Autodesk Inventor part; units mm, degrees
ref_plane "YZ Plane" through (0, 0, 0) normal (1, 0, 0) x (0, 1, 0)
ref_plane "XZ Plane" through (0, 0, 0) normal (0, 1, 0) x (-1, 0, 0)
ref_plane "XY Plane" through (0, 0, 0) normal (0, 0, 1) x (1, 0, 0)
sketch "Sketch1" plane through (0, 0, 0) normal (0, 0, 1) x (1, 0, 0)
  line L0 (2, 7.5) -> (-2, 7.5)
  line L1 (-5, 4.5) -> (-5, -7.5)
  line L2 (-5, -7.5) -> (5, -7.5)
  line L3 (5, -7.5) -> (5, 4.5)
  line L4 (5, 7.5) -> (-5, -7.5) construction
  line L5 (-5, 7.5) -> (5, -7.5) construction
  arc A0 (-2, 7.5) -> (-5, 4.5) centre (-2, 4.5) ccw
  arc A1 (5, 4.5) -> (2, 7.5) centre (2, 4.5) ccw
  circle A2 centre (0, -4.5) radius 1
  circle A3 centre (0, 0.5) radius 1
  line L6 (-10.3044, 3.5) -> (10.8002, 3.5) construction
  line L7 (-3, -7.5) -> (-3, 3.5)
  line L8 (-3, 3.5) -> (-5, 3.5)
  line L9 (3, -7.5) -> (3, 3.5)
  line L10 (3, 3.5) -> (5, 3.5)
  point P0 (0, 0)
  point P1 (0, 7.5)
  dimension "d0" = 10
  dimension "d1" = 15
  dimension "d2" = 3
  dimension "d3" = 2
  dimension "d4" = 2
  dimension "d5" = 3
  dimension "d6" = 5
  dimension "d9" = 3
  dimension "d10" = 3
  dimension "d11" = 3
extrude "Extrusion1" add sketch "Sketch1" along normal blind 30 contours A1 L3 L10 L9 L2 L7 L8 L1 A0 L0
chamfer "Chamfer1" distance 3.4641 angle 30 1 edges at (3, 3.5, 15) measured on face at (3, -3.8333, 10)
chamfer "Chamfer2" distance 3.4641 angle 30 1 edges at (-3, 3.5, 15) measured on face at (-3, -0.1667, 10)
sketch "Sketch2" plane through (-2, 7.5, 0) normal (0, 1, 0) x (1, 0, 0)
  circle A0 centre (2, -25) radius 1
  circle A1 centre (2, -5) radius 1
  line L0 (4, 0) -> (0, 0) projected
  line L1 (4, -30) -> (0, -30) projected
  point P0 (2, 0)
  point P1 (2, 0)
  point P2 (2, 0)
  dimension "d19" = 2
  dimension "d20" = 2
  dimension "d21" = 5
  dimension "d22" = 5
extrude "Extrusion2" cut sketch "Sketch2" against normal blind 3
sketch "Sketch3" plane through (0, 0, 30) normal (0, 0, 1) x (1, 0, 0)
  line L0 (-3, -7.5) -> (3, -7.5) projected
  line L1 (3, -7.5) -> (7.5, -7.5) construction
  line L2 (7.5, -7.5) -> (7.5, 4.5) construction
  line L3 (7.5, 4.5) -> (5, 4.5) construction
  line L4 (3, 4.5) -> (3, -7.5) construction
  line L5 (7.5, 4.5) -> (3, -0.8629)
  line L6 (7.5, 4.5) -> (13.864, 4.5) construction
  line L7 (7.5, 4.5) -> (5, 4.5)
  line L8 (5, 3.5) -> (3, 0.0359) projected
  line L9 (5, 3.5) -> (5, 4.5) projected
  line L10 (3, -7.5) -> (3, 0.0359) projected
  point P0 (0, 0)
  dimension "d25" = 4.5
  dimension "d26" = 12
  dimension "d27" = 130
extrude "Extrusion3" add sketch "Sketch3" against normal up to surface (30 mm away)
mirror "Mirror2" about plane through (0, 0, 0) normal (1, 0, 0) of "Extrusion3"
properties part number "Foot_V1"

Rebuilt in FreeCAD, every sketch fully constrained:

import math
import FreeCAD as App
import Part
import Sketcher
from FreeCAD import Vector
Q = App.Units.Quantity


def edges_at(feature, points):
    """Names of the edges that pass closest to the given points."""
    edges = feature.Shape.Edges
    near = lambda p: min(range(len(edges)), key=lambda i: edges[i].distToShape(Part.Vertex(*p))[0])
    return sorted({f"Edge{near(p) + 1}" for p in points})


def add_polygon(sketch, points):
    """Adds a closed chain of lines whose ends are joined by coincident constraints."""
    first, n = sketch.GeometryCount, len(points)
    for a, b in zip(points, points[1:] + points[:1]):
        sketch.addGeometry(Part.LineSegment(App.Vector(*a, 0), App.Vector(*b, 0)), False)
    for i in range(n):
        sketch.addConstraint(Sketcher.Constraint("Coincident", first + i, 2, first + (i + 1) % n, 1))

doc = App.newDocument("Part")
body = doc.addObject("PartDesign::Body", "Body")

# Sketch on XY plane
sketch1 = doc.addObject("Sketcher::SketchObject", "Sketch")
body.addObject(sketch1)
sketch1.AttachmentSupport = (doc.XY_Plane, [""])
sketch1.MapMode = "FlatFace"
sketch1.addGeometry([
    Part.ArcOfCircle(Part.Circle(Vector(2, 4.5, 0), Vector(0, 0, 1), 3), math.radians(0), math.radians(90)),  # 0
    Part.LineSegment(Vector(2, 7.5, 0), Vector(-2, 7.5, 0)),  # 1
    Part.ArcOfCircle(Part.Circle(Vector(-2, 4.5, 0), Vector(0, 0, 1), 3), math.radians(90), math.radians(180)),  # 2
    Part.LineSegment(Vector(-5, 4.5, 0), Vector(-5, 3.5, 0)),  # 3
    Part.LineSegment(Vector(-5, 3.5, 0), Vector(-3, 3.5, 0)),  # 4
    Part.LineSegment(Vector(-3, 3.5, 0), Vector(-3, -7.5, 0)),  # 5
    Part.LineSegment(Vector(-3, -7.5, 0), Vector(3, -7.5, 0)),  # 6
    Part.LineSegment(Vector(3, -7.5, 0), Vector(3, 3.5, 0)),  # 7
    Part.LineSegment(Vector(3, 3.5, 0), Vector(5, 3.5, 0)),  # 8
    Part.LineSegment(Vector(5, 3.5, 0), Vector(5, 4.5, 0)),  # 9
    Part.Circle(Vector(0, -4.5, 0), Vector(0, 0, 1), 1),  # 10
    Part.Circle(Vector(0, 0.5, 0), Vector(0, 0, 1), 1),  # 11
], False)
sketch1.addConstraint([
    Sketcher.Constraint("Tangent", 0, 2, 1, 1),
    Sketcher.Constraint("Tangent", 1, 2, 2, 1),
    Sketcher.Constraint("Tangent", 2, 2, 3, 1),
    Sketcher.Constraint("Coincident", 3, 2, 4, 1),
    Sketcher.Constraint("Coincident", 4, 2, 5, 1),
    Sketcher.Constraint("Coincident", 5, 2, 6, 1),
    Sketcher.Constraint("Coincident", 6, 2, 7, 1),
    Sketcher.Constraint("Coincident", 7, 2, 8, 1),
    Sketcher.Constraint("Coincident", 8, 2, 9, 1),
    Sketcher.Constraint("Tangent", 9, 2, 0, 1),
    Sketcher.Constraint("Horizontal", 1),
    Sketcher.Constraint("Vertical", 3),
    Sketcher.Constraint("Horizontal", 4),
    Sketcher.Constraint("Vertical", 5),
    Sketcher.Constraint("Horizontal", 6),
    Sketcher.Constraint("Vertical", 7),
    Sketcher.Constraint("Horizontal", 8),
    Sketcher.Constraint("Vertical", 9),
    Sketcher.Constraint("Equal", 0, 2),
    Sketcher.Constraint("Equal", 10, 11),
    Sketcher.Constraint("Symmetric", 4, 2, 7, 2, -2),
    Sketcher.Constraint("PointOnObject", 10, 3, -2),
    Sketcher.Constraint("PointOnObject", 11, 3, -2),
    Sketcher.Constraint("Equal", 4, 8),
    Sketcher.Constraint("Diameter", 10, Q("2 mm")),
    Sketcher.Constraint("Radius", 0, Q("3 mm")),
    Sketcher.Constraint("DistanceX", 4, 1, 4, 2, Q("2 mm")),
    Sketcher.Constraint("DistanceX", -1, 1, 0, 3, Q("2 mm")),
    Sketcher.Constraint("DistanceY", 10, 3, 11, 3, Q("5 mm")),
    Sketcher.Constraint("DistanceY", 11, 3, 3, 2, Q("3 mm")),
    Sketcher.Constraint("DistanceY", 5, 2, 10, 3, Q("3 mm")),
    Sketcher.Constraint("DistanceY", 3, 2, 3, 1, Q("1 mm")),
    Sketcher.Constraint("DistanceY", -1, 1, 0, 3, Q("4.5 mm")),
])
pad1 = doc.addObject("PartDesign::Pad", "Pad")
body.addObject(pad1)
pad1.Profile = sketch1
pad1.Length = 30
doc.recompute()

chamfer = doc.addObject("PartDesign::Chamfer", "Chamfer")
body.addObject(chamfer)
chamfer.Base = (pad1, edges_at(pad1, [(3, 3.5, 15)]))
chamfer.ChamferType = "Distance and Angle"
chamfer.Size = 3.4641
chamfer.Angle = 30
doc.recompute()

chamfer2 = doc.addObject("PartDesign::Chamfer", "Chamfer001")
body.addObject(chamfer2)
chamfer2.Base = (chamfer, edges_at(chamfer, [(-3, 3.5, 15)]))
chamfer2.ChamferType = "Distance and Angle"
chamfer2.Size = 3.4641
chamfer2.Angle = 30

# Sketch on XZ plane
sketch2 = doc.addObject("Sketcher::SketchObject", "Sketch001")
body.addObject(sketch2)
sketch2.AttachmentSupport = (doc.XZ_Plane, [""])
sketch2.MapMode = "FlatFace"
sketch2.AttachmentOffset = App.Placement(Vector(0, 0, -7.5), App.Rotation())
sketch2.addGeometry([
    Part.Circle(Vector(0, 25, 0), Vector(0, 0, 1), 1),
    Part.Circle(Vector(0, 5, 0), Vector(0, 0, 1), 1),
], False)
sketch2.addConstraint([
    Sketcher.Constraint("Equal", 0, 1),
    Sketcher.Constraint("PointOnObject", 0, 3, -2),
    Sketcher.Constraint("PointOnObject", 1, 3, -2),
    Sketcher.Constraint("Diameter", 0, Q("2 mm")),
    Sketcher.Constraint("DistanceY", -1, 1, 1, 3, Q("5 mm")),
    Sketcher.Constraint("DistanceY", -1, 1, 0, 3, Q("25 mm")),
])
pocket1 = doc.addObject("PartDesign::Pocket", "Pocket")
body.addObject(pocket1)
pocket1.Profile = sketch2
pocket1.Length = 3
pocket1.Reversed = True

# Sketch on XY plane
sketch3 = doc.addObject("Sketcher::SketchObject", "Sketch002")
body.addObject(sketch3)
sketch3.AttachmentSupport = (doc.XY_Plane, [""])
sketch3.MapMode = "FlatFace"
sketch3.AttachmentOffset = App.Placement(Vector(0, 0, 30), App.Rotation())
add_polygon(sketch3, [(3, -0.8629), (7.5, 4.5), (5, 4.5), (5, 3.5), (3, 0.0359)])  # lines 0-4
sketch3.addConstraint([
    Sketcher.Constraint("Horizontal", 1),
    Sketcher.Constraint("Vertical", 2),
    Sketcher.Constraint("Vertical", 4),
    Sketcher.Constraint("DistanceY", -1, 1, 0, 2, Q("4.5 mm")),
    Sketcher.Constraint("DistanceX", 3, 2, 0, 2, Q("4.5 mm")),
    Sketcher.Constraint("DistanceY", 2, 2, 2, 1, Q("1 mm")),
    Sketcher.Constraint("Angle", 0, Q("50 deg")),
    Sketcher.Constraint("Angle", 3, Q("-120 deg")),
    Sketcher.Constraint("Distance", 3, Q("4 mm")),
    Sketcher.Constraint("DistanceX", -1, 1, 1, 2, Q("5 mm")),
])
pad2 = doc.addObject("PartDesign::Pad", "Pad001")
body.addObject(pad2)
pad2.Profile = sketch3
pad2.Length = 30
pad2.Reversed = True
doc.recompute()

mirrored = doc.addObject("PartDesign::Mirrored", "Mirrored")
body.addObject(mirrored)
mirrored.Originals = [pad2]
mirrored.MirrorPlane = (doc.YZ_Plane, [""])
body.Tip = mirrored

doc.recompute()
